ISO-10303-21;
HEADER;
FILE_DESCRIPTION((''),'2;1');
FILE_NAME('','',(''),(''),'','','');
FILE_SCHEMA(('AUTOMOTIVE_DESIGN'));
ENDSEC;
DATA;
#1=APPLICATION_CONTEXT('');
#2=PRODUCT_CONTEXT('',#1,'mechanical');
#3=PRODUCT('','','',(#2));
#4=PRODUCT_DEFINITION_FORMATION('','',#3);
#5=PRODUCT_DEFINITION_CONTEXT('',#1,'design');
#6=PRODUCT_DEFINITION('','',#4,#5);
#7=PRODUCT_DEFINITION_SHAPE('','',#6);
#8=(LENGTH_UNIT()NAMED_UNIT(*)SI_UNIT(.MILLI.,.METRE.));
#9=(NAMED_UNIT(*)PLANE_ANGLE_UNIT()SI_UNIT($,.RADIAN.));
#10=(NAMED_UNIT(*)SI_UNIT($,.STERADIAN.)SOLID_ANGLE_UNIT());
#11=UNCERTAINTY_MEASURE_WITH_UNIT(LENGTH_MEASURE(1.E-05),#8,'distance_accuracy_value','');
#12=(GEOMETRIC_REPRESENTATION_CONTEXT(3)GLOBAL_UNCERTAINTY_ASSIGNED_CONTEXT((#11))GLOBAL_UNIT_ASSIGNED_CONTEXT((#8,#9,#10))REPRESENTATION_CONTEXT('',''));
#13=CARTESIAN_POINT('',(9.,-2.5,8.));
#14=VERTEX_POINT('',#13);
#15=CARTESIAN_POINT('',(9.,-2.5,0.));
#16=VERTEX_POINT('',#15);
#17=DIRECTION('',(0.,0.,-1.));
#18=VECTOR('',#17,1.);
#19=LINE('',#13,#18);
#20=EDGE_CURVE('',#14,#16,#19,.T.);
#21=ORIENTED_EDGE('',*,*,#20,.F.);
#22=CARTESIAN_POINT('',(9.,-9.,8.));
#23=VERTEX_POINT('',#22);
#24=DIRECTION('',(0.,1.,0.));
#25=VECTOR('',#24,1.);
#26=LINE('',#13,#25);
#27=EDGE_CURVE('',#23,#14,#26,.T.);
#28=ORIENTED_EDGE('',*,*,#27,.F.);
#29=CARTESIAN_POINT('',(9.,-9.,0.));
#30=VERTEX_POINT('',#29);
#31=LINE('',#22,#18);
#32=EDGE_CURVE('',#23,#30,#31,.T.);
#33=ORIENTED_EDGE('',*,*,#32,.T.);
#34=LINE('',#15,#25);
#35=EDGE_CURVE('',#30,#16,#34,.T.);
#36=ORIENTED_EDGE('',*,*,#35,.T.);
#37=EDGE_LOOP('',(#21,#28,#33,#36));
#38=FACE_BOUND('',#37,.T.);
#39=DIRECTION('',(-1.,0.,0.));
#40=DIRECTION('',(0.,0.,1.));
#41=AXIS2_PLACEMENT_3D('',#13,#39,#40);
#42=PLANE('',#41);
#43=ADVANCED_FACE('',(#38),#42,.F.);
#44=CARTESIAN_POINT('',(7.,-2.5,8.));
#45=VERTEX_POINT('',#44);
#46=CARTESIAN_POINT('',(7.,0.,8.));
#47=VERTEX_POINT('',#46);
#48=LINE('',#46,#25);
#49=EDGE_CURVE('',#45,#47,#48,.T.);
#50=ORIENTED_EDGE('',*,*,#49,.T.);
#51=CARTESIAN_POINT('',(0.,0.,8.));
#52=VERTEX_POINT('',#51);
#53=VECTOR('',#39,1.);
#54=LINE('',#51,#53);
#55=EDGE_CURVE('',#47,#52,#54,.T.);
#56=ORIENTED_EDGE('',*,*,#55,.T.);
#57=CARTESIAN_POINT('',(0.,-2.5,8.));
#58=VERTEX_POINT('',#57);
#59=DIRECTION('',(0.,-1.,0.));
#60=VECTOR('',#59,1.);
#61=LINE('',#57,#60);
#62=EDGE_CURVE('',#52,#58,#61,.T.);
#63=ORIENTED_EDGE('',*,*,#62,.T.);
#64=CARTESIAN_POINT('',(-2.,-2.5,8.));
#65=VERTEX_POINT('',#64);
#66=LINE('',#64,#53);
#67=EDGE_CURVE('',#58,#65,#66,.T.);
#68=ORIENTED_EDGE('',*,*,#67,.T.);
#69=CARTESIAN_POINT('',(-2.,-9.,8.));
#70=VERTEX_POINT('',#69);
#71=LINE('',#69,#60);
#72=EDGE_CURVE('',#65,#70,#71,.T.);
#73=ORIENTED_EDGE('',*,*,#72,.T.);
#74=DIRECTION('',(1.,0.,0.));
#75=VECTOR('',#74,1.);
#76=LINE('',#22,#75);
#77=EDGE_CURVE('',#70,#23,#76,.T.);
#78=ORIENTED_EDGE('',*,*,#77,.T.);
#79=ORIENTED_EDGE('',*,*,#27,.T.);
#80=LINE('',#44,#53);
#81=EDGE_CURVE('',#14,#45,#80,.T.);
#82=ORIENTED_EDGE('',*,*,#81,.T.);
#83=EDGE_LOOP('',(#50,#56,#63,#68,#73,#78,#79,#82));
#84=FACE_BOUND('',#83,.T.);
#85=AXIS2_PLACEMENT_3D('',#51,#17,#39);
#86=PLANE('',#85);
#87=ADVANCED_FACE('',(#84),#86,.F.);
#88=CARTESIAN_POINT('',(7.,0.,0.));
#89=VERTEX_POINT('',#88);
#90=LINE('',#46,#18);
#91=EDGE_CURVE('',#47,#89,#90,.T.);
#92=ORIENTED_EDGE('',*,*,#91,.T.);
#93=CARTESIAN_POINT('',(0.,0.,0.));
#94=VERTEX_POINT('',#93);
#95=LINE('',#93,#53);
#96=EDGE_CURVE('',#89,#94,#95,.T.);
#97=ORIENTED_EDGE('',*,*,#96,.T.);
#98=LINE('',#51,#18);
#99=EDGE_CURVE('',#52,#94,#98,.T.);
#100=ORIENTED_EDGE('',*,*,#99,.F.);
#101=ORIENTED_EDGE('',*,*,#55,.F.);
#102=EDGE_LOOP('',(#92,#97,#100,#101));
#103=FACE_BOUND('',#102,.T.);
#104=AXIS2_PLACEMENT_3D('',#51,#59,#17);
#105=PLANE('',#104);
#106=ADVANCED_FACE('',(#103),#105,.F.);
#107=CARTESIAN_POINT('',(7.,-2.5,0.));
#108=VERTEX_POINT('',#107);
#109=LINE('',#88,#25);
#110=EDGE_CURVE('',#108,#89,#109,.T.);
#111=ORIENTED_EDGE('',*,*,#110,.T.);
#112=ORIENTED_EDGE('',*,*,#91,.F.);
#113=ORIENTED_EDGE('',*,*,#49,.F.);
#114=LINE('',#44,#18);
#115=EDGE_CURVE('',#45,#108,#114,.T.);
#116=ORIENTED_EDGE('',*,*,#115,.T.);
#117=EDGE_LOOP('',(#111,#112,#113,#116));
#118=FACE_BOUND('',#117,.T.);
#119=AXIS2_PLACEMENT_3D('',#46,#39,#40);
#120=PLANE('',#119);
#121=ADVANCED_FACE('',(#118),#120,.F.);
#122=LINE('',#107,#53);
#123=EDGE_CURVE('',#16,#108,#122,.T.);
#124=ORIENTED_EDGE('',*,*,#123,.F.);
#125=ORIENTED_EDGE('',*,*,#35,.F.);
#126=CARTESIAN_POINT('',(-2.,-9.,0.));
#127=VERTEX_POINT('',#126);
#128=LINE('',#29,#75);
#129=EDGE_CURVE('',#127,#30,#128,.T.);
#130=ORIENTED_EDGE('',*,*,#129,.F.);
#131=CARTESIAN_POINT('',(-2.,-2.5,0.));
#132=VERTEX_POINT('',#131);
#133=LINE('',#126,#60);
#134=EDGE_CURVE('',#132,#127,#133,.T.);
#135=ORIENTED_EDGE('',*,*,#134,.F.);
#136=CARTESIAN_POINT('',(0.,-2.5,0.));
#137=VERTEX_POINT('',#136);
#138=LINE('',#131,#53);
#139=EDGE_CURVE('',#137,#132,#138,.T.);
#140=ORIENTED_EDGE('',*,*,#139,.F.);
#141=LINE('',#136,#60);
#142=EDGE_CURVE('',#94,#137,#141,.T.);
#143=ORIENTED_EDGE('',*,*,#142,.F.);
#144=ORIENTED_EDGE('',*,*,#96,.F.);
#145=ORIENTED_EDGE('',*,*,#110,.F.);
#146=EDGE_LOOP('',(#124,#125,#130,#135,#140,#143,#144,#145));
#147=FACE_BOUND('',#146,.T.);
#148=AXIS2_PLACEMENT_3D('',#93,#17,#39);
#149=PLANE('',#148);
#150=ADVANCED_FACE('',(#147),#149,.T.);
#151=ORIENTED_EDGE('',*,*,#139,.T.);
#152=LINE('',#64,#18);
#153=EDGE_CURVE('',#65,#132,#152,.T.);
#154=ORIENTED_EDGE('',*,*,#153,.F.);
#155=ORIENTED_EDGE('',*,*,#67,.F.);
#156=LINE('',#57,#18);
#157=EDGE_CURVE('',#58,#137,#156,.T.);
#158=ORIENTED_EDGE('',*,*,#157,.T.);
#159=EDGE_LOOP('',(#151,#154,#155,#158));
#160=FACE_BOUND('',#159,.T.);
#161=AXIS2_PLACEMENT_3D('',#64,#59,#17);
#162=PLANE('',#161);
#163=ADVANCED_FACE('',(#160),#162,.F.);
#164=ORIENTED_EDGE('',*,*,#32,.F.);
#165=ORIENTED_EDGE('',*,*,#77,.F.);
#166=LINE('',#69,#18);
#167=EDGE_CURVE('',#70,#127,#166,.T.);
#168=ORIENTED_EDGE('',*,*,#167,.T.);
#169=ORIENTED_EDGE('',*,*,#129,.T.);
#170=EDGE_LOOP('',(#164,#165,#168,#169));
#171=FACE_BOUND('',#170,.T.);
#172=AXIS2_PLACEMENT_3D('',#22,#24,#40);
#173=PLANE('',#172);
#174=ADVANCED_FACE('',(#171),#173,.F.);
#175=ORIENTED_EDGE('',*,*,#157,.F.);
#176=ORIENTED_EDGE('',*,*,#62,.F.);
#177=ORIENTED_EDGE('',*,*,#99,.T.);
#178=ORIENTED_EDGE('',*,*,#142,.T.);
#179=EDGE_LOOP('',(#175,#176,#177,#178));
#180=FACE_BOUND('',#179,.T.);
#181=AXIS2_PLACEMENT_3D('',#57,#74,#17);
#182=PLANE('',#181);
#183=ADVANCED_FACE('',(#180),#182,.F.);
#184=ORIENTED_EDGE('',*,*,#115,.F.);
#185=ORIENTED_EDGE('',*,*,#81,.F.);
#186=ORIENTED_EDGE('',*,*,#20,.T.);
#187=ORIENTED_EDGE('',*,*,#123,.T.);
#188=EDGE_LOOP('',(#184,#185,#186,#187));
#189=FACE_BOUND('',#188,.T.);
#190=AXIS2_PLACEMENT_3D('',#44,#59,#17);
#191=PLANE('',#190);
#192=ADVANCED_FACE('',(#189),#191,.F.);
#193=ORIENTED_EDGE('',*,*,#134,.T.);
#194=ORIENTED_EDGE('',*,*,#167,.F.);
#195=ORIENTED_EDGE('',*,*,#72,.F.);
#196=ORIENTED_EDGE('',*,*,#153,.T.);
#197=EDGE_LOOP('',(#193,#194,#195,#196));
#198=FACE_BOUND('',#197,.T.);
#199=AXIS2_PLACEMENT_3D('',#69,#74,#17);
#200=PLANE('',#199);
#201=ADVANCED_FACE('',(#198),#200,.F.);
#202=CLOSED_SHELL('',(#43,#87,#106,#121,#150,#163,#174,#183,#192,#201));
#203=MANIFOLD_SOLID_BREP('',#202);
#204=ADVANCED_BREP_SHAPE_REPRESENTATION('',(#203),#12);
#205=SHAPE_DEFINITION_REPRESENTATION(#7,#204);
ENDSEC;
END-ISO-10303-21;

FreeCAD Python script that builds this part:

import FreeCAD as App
import Part
import Sketcher
from FreeCAD import Vector


def add_polygon(sketch, points):
    """Adds a closed chain of lines whose ends are joined by coincident constraints."""
    first, n = sketch.GeometryCount, len(points)
    for a, b in zip(points, points[1:] + points[:1]):
        sketch.addGeometry(Part.LineSegment(App.Vector(*a, 0), App.Vector(*b, 0)), False)
    for i in range(n):
        sketch.addConstraint(Sketcher.Constraint("Coincident", first + i, 2, first + (i + 1) % n, 1))

doc = App.newDocument("Part")
body = doc.addObject("PartDesign::Body", "Body")

# Sketch on XY plane
sketch1 = body.newObject("Sketcher::SketchObject", "Sketch")
sketch1.AttachmentSupport = (doc.getObject("XY_Plane"), [""])
sketch1.MapMode = "FlatFace"
add_polygon(sketch1, [(7, 0), (0, 0), (0, -2.5), (-2, -2.5), (-2, -9), (9, -9), (9, -2.5), (7, -2.5)])  # lines 0-7
sketch1.addConstraint(Sketcher.Constraint("Horizontal", 0))
sketch1.addConstraint(Sketcher.Constraint("Vertical", 1))
sketch1.addConstraint(Sketcher.Constraint("Horizontal", 2))
sketch1.addConstraint(Sketcher.Constraint("Vertical", 3))
sketch1.addConstraint(Sketcher.Constraint("Horizontal", 4))
sketch1.addConstraint(Sketcher.Constraint("Vertical", 5))
sketch1.addConstraint(Sketcher.Constraint("Horizontal", 6))
sketch1.addConstraint(Sketcher.Constraint("Vertical", 7))
sketch1.addConstraint(Sketcher.Constraint("Coincident", 0, 2, -1, 1))
sketch1.addConstraint(Sketcher.Constraint("Horizontal", 2, 2, 5, 2))
sketch1.addConstraint(Sketcher.Constraint("Equal", 2, 6))
sketch1.addConstraint(Sketcher.Constraint("DistanceX", 0, 2, 0, 1, 7.0))
sketch1.addConstraint(Sketcher.Constraint("DistanceX", 2, 2, 2, 1, 2.0))
sketch1.addConstraint(Sketcher.Constraint("DistanceY", 1, 2, 1, 1, 2.5))
sketch1.addConstraint(Sketcher.Constraint("DistanceY", 3, 2, 3, 1, 6.5))
pad1 = body.newObject("PartDesign::Pad", "Pad")
pad1.Profile = sketch1
pad1.Length = 8

doc.recompute()
